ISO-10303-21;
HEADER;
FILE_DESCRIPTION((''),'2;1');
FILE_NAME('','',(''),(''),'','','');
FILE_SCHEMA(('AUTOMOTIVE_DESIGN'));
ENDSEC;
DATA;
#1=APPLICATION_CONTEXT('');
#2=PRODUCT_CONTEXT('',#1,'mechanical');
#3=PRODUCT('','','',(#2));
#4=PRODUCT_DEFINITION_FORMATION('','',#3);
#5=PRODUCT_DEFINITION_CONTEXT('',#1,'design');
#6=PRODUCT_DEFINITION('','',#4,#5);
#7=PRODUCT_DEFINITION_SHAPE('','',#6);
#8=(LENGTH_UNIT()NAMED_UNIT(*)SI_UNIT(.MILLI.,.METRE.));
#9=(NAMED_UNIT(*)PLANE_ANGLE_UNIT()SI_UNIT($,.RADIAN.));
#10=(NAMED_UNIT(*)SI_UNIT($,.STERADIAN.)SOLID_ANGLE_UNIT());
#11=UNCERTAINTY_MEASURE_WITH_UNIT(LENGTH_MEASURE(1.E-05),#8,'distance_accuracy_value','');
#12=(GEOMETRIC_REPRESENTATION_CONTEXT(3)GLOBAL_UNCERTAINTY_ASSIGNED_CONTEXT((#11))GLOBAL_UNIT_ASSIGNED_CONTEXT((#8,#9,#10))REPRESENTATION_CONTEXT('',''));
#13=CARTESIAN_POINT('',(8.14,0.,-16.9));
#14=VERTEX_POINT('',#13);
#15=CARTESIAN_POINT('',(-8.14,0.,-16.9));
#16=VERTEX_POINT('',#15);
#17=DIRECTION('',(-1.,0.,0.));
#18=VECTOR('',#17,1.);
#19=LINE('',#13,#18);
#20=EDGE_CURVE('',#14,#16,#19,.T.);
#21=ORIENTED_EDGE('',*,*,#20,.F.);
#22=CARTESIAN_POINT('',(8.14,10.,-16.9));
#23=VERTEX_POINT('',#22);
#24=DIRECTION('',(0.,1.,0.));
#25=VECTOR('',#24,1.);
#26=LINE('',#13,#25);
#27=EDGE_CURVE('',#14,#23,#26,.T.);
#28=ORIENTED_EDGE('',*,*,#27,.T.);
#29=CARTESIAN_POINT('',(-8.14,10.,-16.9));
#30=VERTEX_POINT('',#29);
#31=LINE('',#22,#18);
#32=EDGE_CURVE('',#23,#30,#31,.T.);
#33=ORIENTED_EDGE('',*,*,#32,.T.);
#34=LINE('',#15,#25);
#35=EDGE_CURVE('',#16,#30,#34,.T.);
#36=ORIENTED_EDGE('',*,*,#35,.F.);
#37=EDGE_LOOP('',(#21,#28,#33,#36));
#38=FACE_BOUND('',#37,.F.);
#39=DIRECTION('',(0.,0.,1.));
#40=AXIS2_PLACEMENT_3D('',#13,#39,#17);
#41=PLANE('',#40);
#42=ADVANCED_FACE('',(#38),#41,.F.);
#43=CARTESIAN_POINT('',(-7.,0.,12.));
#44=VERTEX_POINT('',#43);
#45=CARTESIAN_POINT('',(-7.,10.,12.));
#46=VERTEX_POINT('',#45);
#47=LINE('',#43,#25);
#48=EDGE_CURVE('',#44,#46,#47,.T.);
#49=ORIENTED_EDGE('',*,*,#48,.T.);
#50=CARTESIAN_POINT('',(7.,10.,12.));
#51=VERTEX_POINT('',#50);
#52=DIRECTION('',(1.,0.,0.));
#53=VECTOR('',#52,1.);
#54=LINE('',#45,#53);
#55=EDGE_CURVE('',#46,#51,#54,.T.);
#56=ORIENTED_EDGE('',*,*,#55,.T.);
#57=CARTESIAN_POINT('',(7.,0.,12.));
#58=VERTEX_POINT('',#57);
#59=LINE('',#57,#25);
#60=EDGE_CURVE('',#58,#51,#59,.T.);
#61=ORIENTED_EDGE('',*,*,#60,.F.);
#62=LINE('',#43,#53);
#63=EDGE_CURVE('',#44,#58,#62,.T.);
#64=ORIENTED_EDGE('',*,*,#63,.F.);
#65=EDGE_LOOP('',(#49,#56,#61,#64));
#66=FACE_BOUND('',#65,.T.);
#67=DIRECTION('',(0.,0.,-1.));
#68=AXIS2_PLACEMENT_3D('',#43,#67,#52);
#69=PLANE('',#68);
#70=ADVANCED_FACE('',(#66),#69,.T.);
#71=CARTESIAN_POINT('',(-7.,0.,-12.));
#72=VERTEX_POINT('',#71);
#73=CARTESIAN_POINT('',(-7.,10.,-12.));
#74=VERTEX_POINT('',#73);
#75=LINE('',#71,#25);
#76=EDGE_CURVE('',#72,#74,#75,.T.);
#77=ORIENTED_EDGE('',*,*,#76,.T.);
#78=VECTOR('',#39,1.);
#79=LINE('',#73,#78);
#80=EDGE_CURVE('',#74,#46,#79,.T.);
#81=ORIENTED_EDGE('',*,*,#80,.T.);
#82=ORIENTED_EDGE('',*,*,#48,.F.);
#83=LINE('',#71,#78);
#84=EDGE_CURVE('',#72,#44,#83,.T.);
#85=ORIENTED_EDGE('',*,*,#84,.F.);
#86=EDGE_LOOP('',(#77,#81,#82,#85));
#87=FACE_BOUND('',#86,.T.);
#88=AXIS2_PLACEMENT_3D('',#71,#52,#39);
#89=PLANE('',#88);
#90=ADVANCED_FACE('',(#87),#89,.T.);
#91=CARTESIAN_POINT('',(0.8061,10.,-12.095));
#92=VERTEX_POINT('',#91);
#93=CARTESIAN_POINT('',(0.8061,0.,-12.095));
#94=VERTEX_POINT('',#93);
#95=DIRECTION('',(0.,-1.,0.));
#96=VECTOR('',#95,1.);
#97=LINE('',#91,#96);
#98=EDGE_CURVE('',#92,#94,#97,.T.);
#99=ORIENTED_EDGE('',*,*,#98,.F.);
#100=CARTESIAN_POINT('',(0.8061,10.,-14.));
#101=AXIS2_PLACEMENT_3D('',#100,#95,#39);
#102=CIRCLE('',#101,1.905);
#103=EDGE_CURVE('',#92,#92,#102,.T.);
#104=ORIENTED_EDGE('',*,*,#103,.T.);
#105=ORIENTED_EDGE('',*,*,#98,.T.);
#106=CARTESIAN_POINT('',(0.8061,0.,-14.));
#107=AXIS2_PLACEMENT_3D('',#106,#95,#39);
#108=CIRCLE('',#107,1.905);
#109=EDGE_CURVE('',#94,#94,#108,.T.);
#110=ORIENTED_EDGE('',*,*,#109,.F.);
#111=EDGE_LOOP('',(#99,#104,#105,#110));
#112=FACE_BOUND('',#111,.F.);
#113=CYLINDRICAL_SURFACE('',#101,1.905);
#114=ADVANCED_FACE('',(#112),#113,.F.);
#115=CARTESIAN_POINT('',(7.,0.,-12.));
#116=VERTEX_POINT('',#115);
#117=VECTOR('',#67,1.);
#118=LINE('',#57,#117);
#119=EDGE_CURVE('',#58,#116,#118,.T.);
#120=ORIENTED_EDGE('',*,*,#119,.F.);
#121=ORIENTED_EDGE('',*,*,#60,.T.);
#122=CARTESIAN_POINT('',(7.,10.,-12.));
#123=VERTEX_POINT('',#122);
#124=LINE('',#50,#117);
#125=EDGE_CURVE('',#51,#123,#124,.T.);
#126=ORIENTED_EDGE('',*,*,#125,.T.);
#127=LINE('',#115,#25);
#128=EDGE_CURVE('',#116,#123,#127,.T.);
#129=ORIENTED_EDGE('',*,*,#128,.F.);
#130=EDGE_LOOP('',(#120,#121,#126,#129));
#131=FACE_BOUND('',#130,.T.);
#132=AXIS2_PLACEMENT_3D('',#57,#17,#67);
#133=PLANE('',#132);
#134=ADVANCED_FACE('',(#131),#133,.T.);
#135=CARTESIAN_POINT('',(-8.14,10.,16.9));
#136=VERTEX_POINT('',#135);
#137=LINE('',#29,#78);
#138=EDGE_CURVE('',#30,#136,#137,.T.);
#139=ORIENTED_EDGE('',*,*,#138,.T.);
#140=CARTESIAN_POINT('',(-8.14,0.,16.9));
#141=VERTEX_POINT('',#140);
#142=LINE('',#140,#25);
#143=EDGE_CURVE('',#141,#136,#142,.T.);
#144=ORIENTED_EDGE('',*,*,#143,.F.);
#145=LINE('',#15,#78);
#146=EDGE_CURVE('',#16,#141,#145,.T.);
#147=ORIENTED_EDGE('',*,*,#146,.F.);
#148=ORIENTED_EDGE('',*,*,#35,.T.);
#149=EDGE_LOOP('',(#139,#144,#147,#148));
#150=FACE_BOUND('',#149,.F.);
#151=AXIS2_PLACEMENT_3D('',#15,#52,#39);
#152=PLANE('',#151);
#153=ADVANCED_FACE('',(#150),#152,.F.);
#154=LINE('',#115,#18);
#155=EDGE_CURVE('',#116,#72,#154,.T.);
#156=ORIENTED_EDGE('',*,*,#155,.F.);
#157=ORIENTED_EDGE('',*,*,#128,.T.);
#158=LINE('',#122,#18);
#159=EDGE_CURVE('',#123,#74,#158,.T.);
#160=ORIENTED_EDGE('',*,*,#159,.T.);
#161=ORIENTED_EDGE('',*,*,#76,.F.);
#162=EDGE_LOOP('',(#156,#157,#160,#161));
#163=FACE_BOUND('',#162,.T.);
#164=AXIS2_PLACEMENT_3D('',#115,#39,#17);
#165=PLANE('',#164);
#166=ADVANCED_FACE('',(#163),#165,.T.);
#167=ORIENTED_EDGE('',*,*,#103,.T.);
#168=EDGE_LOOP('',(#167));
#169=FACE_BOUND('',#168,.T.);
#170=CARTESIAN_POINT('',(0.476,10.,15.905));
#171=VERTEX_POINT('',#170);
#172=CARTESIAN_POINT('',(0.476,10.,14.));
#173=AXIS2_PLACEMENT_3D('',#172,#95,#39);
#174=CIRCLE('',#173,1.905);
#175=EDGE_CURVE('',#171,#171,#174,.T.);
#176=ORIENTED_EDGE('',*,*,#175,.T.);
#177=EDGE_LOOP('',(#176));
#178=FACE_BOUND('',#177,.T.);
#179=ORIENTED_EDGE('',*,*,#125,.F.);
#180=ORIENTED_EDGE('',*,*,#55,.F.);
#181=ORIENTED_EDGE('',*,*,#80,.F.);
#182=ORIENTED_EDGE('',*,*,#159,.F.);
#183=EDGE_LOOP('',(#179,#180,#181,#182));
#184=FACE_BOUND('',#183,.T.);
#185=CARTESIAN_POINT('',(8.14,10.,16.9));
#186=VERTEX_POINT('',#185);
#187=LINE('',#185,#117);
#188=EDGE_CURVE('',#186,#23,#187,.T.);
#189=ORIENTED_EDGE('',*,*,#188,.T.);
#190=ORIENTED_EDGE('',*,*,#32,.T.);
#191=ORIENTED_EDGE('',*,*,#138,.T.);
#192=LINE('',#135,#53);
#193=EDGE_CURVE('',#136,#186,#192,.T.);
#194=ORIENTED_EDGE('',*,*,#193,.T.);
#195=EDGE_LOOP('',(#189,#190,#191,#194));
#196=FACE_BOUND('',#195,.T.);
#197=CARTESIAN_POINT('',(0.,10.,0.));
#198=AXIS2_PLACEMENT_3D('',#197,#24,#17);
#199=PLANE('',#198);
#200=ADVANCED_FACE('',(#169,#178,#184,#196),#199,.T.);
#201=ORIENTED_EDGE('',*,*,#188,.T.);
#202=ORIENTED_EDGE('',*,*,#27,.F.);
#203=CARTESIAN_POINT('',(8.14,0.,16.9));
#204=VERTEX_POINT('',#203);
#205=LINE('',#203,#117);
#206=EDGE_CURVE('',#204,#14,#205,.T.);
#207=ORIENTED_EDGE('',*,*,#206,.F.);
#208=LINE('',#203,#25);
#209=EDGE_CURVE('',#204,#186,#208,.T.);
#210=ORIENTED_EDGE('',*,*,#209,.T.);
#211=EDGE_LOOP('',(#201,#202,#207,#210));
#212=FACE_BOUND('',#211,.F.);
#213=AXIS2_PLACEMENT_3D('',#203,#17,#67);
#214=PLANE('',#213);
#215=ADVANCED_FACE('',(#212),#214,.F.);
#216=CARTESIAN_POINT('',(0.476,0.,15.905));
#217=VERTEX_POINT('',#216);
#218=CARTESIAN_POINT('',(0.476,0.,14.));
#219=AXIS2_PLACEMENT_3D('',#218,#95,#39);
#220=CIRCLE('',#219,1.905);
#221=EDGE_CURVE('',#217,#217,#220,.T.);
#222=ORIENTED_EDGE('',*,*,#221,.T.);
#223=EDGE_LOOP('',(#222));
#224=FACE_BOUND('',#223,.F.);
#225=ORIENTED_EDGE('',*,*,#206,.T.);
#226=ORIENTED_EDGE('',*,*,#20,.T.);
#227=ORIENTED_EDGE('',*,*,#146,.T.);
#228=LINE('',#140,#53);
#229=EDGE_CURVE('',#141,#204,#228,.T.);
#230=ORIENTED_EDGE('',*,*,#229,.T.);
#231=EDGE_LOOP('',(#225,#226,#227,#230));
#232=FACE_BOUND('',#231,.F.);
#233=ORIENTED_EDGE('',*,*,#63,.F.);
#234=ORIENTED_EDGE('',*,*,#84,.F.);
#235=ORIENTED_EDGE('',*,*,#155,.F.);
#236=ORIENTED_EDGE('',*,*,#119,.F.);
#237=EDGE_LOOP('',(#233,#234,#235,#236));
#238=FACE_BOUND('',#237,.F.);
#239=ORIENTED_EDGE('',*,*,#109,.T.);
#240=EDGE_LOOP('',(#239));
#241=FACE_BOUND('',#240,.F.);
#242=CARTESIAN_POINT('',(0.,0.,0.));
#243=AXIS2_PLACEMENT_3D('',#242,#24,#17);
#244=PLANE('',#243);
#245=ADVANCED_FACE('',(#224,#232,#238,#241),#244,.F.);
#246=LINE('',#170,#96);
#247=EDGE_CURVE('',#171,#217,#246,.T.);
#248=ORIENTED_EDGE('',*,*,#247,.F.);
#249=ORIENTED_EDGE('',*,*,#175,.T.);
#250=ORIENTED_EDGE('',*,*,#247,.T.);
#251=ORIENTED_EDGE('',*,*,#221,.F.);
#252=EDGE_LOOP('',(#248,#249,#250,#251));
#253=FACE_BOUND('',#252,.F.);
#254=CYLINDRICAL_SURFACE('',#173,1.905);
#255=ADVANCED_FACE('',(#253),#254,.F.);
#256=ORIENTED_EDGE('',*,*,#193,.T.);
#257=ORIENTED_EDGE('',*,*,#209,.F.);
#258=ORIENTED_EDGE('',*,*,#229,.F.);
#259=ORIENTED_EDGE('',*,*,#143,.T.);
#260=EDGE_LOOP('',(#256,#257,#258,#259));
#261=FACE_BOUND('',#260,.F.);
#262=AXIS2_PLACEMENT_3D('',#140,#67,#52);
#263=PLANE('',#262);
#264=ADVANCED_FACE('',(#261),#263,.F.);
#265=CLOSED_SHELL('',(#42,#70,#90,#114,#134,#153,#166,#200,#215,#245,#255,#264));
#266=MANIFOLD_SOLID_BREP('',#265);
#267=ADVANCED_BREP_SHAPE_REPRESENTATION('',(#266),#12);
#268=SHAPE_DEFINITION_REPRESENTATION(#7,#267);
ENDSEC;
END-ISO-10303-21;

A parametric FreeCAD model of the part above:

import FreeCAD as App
import Part
import Sketcher

V = App.Vector


def add_polygon(sketch, points):
    """Adds a closed chain of lines whose ends are joined by coincident constraints."""
    first, n = sketch.GeometryCount, len(points)
    for a, b in zip(points, points[1:] + points[:1]):
        sketch.addGeometry(Part.LineSegment(App.Vector(*a, 0), App.Vector(*b, 0)), False)
    for i in range(n):
        sketch.addConstraint(Sketcher.Constraint("Coincident", first + i, 2, first + (i + 1) % n, 1))

doc = App.newDocument("Part")
params = doc.addObject("Spreadsheet::Sheet", "Params")
for row, (alias, value) in enumerate([
    ("sketch1_height", "33.8 mm"),
    ("sketch1_width", "16.28 mm"),
    ("pad1_length", "10 mm"),
    ("sketch2_width", "14 mm"),
    ("sketch2_height", "24 mm"),
    ("pocket1_length", "10 mm"),
    ("sketch3_diameter", "3.81 mm"),
    ("hole_diameter", "3.81 mm"),
    ("hole_depth", "10 mm"),
    ("sketch4_diameter", "3.81 mm"),
    ("hole2_diameter", "3.81 mm"),
    ("hole2_depth", "10 mm"),
], start=1):
    params.set(f"A{row}", alias)
    params.set(f"B{row}", "=" + value)
    params.setAlias(f"B{row}", alias)

body = doc.addObject("PartDesign::Body", "Body")

# Sketch on XZ plane
sketch1 = body.newObject("Sketcher::SketchObject", "Sketch")
sketch1.AttachmentSupport = (doc.getObject("XZ_Plane"), [""])
sketch1.MapMode = "FlatFace"
add_polygon(sketch1, [(-8.14, -16.9), (-8.14, 16.9), (8.14, 16.9), (8.14, -16.9)])  # lines 0-3
sketch1.addConstraint(Sketcher.Constraint("Vertical", 0))
sketch1.addConstraint(Sketcher.Constraint("Horizontal", 1))
sketch1.addConstraint(Sketcher.Constraint("Vertical", 2))
sketch1.addConstraint(Sketcher.Constraint("Horizontal", 3))
sketch1.addConstraint(Sketcher.Constraint("Symmetric", 0, 2, 2, 2, -1, 1))
sketch1.addConstraint(Sketcher.Constraint("DistanceY", 0, 1, 0, 2, 33.8))
sketch1.addConstraint(Sketcher.Constraint("DistanceX", 1, 1, 1, 2, 16.28))
sketch1.setExpression("Constraints[9]", "Params.sketch1_height")
sketch1.setExpression("Constraints[10]", "Params.sketch1_width")
pad1 = body.newObject("PartDesign::Pad", "Pad")
pad1.Profile = sketch1
pad1.setExpression("Length", "Params.pad1_length")
pad1.Reversed = True

# Sketch on XZ plane
sketch2 = body.newObject("Sketcher::SketchObject", "Sketch001")
sketch2.AttachmentSupport = (doc.getObject("XZ_Plane"), [""])
sketch2.MapMode = "FlatFace"
add_polygon(sketch2, [(7, 12), (7, -12), (-7, -12), (-7, 12)])  # lines 0-3
sketch2.addConstraint(Sketcher.Constraint("Vertical", 0))
sketch2.addConstraint(Sketcher.Constraint("Horizontal", 1))
sketch2.addConstraint(Sketcher.Constraint("Vertical", 2))
sketch2.addConstraint(Sketcher.Constraint("Horizontal", 3))
sketch2.addConstraint(Sketcher.Constraint("Symmetric", 0, 2, 2, 2, -1, 1))
sketch2.addConstraint(Sketcher.Constraint("DistanceX", 1, 2, 1, 1, 14.0))
sketch2.addConstraint(Sketcher.Constraint("DistanceY", 0, 2, 0, 1, 24.0))
sketch2.setExpression("Constraints[9]", "Params.sketch2_width")
sketch2.setExpression("Constraints[10]", "Params.sketch2_height")
pocket1 = body.newObject("PartDesign::Pocket", "Pocket")
pocket1.Profile = sketch2
pocket1.setExpression("Length", "Params.pocket1_length")

# Sketch on XZ plane
sketch3 = body.newObject("Sketcher::SketchObject", "Sketch002")
sketch3.AttachmentSupport = (doc.getObject("XZ_Plane"), [""])
sketch3.MapMode = "FlatFace"
sketch3.AttachmentOffset = App.Placement(V(0, 0, -10), App.Rotation())
sketch3.addGeometry(Part.Circle(V(0.476, 14, 0), V(0, 0, 1), 1.905), False)
sketch3.addConstraint(Sketcher.Constraint("Diameter", 0, 3.81))
sketch3.addConstraint(Sketcher.Constraint("DistanceY", -1, 1, 0, 3, 14.0))
sketch3.addConstraint(Sketcher.Constraint("DistanceX", -1, 1, 0, 3, 0.476))
sketch3.setExpression("Constraints[0]", "Params.sketch3_diameter")
doc.recompute()
hole = body.newObject("PartDesign::Hole", "Hole")
hole.Profile = sketch3
hole.ThreadType = "None"
hole.setExpression("Diameter", "Params.hole_diameter")
hole.DepthType = "Dimension"
hole.setExpression("Depth", "Params.hole_depth")
hole.DrillPoint = "Flat"
hole.Reversed = True

# Sketch on XZ plane
sketch4 = body.newObject("Sketcher::SketchObject", "Sketch003")
sketch4.AttachmentSupport = (doc.getObject("XZ_Plane"), [""])
sketch4.MapMode = "FlatFace"
sketch4.AttachmentOffset = App.Placement(V(0, 0, -10), App.Rotation())
sketch4.addGeometry(Part.Circle(V(0.8061, -14, 0), V(0, 0, 1), 1.905), False)
sketch4.addConstraint(Sketcher.Constraint("Diameter", 0, 3.81))
sketch4.addConstraint(Sketcher.Constraint("DistanceY", 0, 3, -1, 1, 14.0))
sketch4.addConstraint(Sketcher.Constraint("DistanceX", -1, 1, 0, 3, 0.806))
sketch4.setExpression("Constraints[0]", "Params.sketch4_diameter")
doc.recompute()
hole2 = body.newObject("PartDesign::Hole", "Hole001")
hole2.Profile = sketch4
hole2.ThreadType = "None"
hole2.setExpression("Diameter", "Params.hole2_diameter")
hole2.DepthType = "Dimension"
hole2.setExpression("Depth", "Params.hole2_depth")
hole2.DrillPoint = "Flat"
hole2.Reversed = True

doc.recompute()
